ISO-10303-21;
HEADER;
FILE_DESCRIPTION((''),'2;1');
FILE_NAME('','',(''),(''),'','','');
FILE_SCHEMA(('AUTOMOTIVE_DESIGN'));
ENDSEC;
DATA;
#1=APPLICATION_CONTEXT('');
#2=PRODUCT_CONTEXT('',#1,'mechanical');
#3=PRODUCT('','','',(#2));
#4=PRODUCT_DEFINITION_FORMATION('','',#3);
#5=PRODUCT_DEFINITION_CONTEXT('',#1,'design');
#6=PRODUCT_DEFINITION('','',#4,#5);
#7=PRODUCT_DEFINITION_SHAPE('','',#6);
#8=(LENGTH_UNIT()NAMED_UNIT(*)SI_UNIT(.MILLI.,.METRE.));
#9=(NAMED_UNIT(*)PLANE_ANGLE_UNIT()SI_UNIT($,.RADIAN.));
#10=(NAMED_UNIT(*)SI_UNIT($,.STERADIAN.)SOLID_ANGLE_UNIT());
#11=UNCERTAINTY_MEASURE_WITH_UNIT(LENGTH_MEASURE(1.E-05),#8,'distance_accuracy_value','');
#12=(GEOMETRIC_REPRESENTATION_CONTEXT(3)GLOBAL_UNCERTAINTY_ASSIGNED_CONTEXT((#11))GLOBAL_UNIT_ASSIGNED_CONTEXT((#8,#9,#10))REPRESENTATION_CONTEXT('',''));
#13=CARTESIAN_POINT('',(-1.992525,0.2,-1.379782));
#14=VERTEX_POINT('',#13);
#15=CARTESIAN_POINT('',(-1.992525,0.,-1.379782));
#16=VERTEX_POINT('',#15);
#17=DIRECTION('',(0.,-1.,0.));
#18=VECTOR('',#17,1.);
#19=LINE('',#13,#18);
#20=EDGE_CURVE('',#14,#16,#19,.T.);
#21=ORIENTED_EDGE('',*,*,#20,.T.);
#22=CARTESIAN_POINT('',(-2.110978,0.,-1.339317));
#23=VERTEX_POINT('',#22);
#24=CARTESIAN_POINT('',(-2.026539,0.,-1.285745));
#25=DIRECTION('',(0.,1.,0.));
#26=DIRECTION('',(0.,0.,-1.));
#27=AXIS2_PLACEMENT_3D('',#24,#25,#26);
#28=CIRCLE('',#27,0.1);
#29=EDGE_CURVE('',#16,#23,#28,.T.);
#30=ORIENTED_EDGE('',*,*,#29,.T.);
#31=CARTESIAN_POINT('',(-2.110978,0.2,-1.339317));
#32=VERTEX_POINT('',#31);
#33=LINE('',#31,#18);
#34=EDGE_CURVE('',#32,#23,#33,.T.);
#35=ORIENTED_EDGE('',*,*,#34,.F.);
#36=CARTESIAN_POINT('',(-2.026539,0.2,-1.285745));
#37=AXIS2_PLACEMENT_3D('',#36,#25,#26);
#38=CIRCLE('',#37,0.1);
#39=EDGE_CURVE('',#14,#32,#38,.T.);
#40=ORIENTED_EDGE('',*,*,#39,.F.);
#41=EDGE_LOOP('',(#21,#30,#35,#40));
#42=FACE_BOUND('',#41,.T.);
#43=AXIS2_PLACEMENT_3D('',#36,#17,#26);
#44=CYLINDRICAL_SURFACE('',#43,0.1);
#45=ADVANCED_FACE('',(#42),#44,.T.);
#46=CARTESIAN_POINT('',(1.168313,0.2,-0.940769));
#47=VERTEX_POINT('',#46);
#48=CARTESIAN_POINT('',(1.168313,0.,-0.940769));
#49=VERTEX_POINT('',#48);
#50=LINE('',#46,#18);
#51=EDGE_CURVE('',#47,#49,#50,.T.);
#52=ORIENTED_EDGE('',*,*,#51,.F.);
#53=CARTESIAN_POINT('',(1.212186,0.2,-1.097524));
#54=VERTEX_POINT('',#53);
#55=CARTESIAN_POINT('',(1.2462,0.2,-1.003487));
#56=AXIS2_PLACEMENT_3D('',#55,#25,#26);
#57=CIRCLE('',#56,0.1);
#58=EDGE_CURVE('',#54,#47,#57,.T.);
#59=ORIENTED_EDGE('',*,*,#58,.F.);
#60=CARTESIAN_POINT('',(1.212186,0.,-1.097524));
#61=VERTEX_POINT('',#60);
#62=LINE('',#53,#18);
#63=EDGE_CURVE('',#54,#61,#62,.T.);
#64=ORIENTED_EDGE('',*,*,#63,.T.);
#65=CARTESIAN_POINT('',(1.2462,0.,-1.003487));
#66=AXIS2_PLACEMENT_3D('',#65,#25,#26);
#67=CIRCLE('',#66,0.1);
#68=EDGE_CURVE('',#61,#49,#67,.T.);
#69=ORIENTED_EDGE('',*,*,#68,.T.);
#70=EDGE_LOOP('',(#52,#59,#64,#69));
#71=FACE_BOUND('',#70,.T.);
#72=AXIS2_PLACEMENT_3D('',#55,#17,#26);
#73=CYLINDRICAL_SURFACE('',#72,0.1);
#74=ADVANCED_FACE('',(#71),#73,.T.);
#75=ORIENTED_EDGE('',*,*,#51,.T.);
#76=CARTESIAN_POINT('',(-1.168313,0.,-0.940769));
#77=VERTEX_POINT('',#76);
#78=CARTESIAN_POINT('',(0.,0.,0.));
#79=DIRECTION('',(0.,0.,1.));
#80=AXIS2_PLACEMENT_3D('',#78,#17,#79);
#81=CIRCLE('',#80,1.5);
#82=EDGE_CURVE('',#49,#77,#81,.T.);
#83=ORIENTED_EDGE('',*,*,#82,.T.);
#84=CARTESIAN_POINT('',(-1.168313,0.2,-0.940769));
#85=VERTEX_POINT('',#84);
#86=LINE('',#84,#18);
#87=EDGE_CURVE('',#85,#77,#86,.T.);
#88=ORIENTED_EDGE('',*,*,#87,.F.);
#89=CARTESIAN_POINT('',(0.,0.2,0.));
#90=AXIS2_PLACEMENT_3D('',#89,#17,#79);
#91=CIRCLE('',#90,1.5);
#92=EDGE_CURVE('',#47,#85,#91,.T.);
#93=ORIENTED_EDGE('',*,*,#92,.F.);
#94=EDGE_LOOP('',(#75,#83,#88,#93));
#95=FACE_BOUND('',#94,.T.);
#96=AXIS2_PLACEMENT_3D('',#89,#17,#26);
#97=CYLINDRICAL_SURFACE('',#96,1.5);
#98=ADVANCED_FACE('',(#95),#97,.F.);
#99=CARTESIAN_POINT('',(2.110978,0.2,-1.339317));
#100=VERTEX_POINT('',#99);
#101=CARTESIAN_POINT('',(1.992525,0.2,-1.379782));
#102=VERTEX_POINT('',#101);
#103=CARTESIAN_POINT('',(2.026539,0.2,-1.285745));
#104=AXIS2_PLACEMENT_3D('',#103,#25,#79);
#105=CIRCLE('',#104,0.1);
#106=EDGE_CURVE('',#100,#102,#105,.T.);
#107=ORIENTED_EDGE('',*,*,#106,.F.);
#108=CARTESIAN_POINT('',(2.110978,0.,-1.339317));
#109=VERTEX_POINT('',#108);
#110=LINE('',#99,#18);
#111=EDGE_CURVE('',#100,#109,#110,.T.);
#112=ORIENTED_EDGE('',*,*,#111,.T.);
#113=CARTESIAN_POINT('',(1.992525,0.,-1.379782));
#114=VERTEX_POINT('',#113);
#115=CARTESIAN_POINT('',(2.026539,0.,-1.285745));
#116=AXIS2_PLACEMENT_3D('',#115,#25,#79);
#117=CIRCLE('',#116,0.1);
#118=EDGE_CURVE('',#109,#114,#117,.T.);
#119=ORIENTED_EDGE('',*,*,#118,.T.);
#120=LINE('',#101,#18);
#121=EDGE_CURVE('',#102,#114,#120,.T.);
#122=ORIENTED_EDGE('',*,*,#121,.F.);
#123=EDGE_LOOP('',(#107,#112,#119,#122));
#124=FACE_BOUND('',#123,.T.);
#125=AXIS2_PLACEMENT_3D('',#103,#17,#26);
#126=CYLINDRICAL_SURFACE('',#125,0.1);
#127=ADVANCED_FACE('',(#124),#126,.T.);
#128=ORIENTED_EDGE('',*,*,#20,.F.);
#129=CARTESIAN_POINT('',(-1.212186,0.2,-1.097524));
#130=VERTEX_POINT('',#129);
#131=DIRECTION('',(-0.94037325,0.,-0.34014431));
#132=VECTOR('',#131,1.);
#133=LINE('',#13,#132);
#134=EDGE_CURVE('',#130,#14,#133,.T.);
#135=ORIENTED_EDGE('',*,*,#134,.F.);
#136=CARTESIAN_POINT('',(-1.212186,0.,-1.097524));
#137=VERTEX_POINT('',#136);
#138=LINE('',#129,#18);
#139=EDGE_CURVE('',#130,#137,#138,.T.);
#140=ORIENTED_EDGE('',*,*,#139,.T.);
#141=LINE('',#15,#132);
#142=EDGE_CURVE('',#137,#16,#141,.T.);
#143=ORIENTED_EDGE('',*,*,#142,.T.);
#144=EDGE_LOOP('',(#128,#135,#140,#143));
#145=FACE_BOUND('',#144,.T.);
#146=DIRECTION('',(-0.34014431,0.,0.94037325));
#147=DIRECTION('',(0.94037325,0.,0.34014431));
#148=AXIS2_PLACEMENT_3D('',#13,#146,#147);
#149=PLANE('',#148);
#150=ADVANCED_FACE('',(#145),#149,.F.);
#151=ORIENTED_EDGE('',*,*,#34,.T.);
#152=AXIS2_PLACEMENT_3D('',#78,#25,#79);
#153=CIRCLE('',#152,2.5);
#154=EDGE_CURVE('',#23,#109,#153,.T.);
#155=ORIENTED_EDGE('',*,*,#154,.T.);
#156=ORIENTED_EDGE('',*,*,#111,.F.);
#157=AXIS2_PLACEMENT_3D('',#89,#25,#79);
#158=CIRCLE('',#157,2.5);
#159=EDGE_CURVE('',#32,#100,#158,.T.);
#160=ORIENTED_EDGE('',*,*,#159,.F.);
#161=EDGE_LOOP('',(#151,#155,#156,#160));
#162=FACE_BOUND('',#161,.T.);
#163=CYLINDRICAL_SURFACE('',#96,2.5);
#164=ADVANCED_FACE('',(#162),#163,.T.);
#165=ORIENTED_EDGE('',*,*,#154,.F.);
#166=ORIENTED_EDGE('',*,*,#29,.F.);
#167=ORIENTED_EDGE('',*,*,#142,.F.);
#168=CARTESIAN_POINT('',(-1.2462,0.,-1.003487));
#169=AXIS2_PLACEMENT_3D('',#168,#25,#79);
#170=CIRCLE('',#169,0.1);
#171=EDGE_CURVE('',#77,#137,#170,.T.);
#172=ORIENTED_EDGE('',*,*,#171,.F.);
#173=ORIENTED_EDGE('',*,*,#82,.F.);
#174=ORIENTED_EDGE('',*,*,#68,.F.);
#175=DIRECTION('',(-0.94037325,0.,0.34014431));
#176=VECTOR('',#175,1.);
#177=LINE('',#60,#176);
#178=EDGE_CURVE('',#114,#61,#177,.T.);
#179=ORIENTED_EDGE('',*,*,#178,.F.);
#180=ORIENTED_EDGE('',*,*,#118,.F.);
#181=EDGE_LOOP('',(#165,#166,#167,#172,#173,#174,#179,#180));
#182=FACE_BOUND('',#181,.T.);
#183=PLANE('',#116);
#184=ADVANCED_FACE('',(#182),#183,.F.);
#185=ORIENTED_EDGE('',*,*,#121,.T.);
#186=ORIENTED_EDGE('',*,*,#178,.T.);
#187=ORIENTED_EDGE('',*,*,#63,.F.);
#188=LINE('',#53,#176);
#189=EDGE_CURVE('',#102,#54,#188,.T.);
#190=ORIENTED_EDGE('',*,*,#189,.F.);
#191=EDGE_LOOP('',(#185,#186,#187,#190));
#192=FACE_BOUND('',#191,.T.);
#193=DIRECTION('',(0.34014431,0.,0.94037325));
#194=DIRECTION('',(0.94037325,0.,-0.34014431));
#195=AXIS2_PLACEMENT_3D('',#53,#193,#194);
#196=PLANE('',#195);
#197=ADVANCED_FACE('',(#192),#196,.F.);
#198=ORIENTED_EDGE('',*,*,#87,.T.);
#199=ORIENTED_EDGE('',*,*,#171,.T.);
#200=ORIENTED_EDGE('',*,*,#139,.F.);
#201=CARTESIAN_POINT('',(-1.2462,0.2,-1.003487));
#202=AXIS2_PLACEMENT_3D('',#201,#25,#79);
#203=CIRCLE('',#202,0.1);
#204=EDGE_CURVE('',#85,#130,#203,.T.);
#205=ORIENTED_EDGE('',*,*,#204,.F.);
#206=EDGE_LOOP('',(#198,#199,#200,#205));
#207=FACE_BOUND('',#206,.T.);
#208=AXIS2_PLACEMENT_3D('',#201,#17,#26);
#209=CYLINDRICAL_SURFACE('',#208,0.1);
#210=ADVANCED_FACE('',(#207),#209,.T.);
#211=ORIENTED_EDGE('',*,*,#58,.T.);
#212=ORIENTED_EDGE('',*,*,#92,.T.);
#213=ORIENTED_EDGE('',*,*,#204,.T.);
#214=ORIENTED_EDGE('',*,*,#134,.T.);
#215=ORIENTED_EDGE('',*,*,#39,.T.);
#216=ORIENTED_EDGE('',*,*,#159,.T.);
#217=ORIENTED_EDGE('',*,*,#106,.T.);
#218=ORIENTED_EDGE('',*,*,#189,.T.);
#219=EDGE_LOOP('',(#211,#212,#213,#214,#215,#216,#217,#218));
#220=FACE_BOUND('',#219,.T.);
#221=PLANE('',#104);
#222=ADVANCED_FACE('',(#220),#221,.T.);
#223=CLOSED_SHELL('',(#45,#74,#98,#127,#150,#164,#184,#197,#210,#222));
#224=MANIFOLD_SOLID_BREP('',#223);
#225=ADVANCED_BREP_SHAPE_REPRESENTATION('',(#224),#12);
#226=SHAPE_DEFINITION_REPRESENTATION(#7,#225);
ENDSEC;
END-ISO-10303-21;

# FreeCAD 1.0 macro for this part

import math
import FreeCAD as App
import Part
import Sketcher
from FreeCAD import Vector
Q = App.Units.Quantity

doc = App.newDocument("Part")
body = doc.addObject("PartDesign::Body", "Body")

# Sketch on XZ plane
sketch1 = body.newObject("Sketcher::SketchObject", "Sketch")
sketch1.AttachmentSupport = (doc.getObject("XZ_Plane"), [""])
sketch1.MapMode = "FlatFace"
sketch1.addGeometry(Part.LineSegment(Vector(-1.212186, -1.097524, 0), Vector(-1.992525, -1.379782, 0)), False)
sketch1.addGeometry(Part.ArcOfCircle(Part.Circle(Vector(-2.026539, -1.285745, 0), Vector(0, 0, 1), 0.1), math.radians(-147.606774), math.radians(-70.114335)), False)
sketch1.addGeometry(Part.ArcOfCircle(Part.Circle(Vector(0, 0, 0), Vector(0, 0, 1), 2.5), math.radians(-32.393225), math.radians(212.393225)), False)
sketch1.addGeometry(Part.ArcOfCircle(Part.Circle(Vector(2.026539, -1.285745, 0), Vector(0, 0, 1), 0.1), math.radians(-109.885665), math.radians(-32.393226)), False)
sketch1.addGeometry(Part.LineSegment(Vector(1.992525, -1.379782, 0), Vector(1.212186, -1.097524, 0)), False)
sketch1.addGeometry(Part.ArcOfCircle(Part.Circle(Vector(1.2462, -1.003487, 0), Vector(0, 0, 1), 0.1), math.radians(141.157687), math.radians(250.114334)), False)
sketch1.addGeometry(Part.ArcOfCircle(Part.Circle(Vector(0, 0, 0), Vector(0, 0, 1), 1.5), math.radians(-38.842312), math.radians(218.842312)), False)
sketch1.addGeometry(Part.ArcOfCircle(Part.Circle(Vector(-1.2462, -1.003487, 0), Vector(0, 0, 1), 0.1), math.radians(-70.114334), math.radians(38.842313)), False)
sketch1.addConstraint(Sketcher.Constraint("Tangent", 0, 2, 1, 2))
sketch1.addConstraint(Sketcher.Constraint("Tangent", 1, 1, 2, 2))
sketch1.addConstraint(Sketcher.Constraint("Tangent", 2, 1, 3, 2))
sketch1.addConstraint(Sketcher.Constraint("Tangent", 3, 1, 4, 1))
sketch1.addConstraint(Sketcher.Constraint("Tangent", 4, 2, 5, 2))
sketch1.addConstraint(Sketcher.Constraint("Tangent", 5, 1, 6, 1))
sketch1.addConstraint(Sketcher.Constraint("Tangent", 6, 2, 7, 2))
sketch1.addConstraint(Sketcher.Constraint("Tangent", 7, 1, 0, 1))
sketch1.addConstraint(Sketcher.Constraint("Coincident", 2, 3, -1, 1))
sketch1.addConstraint(Sketcher.Constraint("Coincident", 6, 3, -1, 1))
sketch1.addConstraint(Sketcher.Constraint("Equal", 1, 3))
sketch1.addConstraint(Sketcher.Constraint("Equal", 3, 5))
sketch1.addConstraint(Sketcher.Constraint("Equal", 5, 7))
sketch1.addConstraint(Sketcher.Constraint("Symmetric", 0, 2, 3, 1, -2))
sketch1.addConstraint(Sketcher.Constraint("Radius", 1, Q("0.1 mm")))
sketch1.addConstraint(Sketcher.Constraint("Radius", 2, Q("2.5 mm")))
sketch1.addConstraint(Sketcher.Constraint("Radius", 6, Q("1.5 mm")))
sketch1.addConstraint(Sketcher.Constraint("DistanceX", -1, 1, 5, 3, Q("1.2462 mm")))
sketch1.addConstraint(Sketcher.Constraint("Distance", 0, Q("0.829818 mm")))
pad1 = body.newObject("PartDesign::Pad", "Pad")
pad1.Profile = sketch1
pad1.Length = 0.2
pad1.Reversed = True

doc.recompute()
